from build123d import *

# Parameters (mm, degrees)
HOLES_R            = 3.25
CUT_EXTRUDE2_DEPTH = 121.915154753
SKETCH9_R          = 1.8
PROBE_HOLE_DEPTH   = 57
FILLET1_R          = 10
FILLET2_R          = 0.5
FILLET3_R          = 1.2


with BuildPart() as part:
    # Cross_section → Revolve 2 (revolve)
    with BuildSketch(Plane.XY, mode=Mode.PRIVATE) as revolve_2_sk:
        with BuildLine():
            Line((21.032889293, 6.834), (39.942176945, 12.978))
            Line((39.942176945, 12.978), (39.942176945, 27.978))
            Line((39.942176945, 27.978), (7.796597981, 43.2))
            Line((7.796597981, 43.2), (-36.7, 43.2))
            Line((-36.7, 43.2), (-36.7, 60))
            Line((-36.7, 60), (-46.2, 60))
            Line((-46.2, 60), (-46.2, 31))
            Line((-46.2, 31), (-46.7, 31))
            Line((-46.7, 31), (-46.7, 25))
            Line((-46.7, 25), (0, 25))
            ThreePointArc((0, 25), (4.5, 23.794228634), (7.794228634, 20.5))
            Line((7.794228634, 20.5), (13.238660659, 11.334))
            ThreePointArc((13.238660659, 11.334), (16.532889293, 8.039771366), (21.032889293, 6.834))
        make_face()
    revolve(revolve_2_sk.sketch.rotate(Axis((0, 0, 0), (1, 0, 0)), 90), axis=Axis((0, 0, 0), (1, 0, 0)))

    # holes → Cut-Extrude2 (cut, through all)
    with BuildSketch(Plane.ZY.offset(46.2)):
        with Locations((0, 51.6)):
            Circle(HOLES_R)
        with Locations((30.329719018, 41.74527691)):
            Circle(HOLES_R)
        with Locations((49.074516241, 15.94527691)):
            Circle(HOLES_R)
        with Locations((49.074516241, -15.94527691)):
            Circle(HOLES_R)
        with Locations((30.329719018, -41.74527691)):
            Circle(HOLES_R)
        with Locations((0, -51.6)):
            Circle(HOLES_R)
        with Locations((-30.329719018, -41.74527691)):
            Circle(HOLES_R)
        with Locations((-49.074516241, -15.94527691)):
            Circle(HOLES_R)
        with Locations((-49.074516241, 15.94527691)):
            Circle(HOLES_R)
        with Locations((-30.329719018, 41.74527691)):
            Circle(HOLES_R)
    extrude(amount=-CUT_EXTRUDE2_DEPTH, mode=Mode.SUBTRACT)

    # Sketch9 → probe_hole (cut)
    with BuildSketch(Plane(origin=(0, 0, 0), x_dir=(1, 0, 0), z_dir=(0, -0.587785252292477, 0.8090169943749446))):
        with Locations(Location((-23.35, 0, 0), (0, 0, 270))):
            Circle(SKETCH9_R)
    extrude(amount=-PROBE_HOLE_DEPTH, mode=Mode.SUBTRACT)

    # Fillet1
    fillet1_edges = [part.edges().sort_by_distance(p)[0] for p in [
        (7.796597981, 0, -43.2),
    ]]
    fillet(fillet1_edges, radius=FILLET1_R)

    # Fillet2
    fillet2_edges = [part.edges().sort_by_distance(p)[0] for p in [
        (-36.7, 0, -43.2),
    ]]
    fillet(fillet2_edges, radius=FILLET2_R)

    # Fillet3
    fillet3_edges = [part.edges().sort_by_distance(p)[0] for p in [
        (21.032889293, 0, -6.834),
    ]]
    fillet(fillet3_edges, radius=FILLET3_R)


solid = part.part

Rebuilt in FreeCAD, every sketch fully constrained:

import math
import FreeCAD as App
import Part
import Sketcher
Q = App.Units.Quantity


def edges_at(feature, points):
    """Names of the edges that pass closest to the given points."""
    edges = feature.Shape.Edges
    near = lambda p: min(range(len(edges)), key=lambda i: edges[i].distToShape(Part.Vertex(*p))[0])
    return sorted({f"Edge{near(p) + 1}" for p in points})

doc = App.newDocument("Part")
body = doc.addObject("PartDesign::Body", "Body")

# Sketch on XY plane
sketch1 = body.newObject("Sketcher::SketchObject", "Sketch")
sketch1.AttachmentSupport = (doc.getObject("XY_Plane"), [""])
sketch1.MapMode = "FlatFace"
sketch1.addGeometry(Part.LineSegment(App.Vector(21, 6.8, 0), App.Vector(39.9, 13, 0)), False)
sketch1.addGeometry(Part.LineSegment(App.Vector(39.9, 13, 0), App.Vector(39.9, 28, 0)), False)
sketch1.addGeometry(Part.LineSegment(App.Vector(39.9, 28, 0), App.Vector(7.8, 43.2, 0)), False)
sketch1.addGeometry(Part.LineSegment(App.Vector(7.8, 43.2, 0), App.Vector(-36.7, 43.2, 0)), False)
sketch1.addGeometry(Part.LineSegment(App.Vector(-36.7, 43.2, 0), App.Vector(-36.7, 60, 0)), False)
sketch1.addGeometry(Part.LineSegment(App.Vector(-36.7, 60, 0), App.Vector(-46.2, 60, 0)), False)
sketch1.addGeometry(Part.LineSegment(App.Vector(-46.2, 60, 0), App.Vector(-46.2, 31, 0)), False)
sketch1.addGeometry(Part.LineSegment(App.Vector(-46.2, 31, 0), App.Vector(-46.7, 31, 0)), False)
sketch1.addGeometry(Part.LineSegment(App.Vector(-46.7, 31, 0), App.Vector(-46.7, 25, 0)), False)
sketch1.addGeometry(Part.LineSegment(App.Vector(-46.7, 25, 0), App.Vector(0, 25, 0)), False)
sketch1.addGeometry(Part.ArcOfCircle(Part.Circle(App.Vector(0, 16, 0), App.Vector(0, 0, 1), 9), math.radians(30), math.radians(90)), False)
sketch1.addGeometry(Part.LineSegment(App.Vector(7.8, 20.5, 0), App.Vector(13.2, 11.3, 0)), False)
sketch1.addGeometry(Part.ArcOfCircle(Part.Circle(App.Vector(21, 15.8, 0), App.Vector(0, 0, 1), 9), math.radians(-150), math.radians(-90)), False)
sketch1.addConstraint(Sketcher.Constraint("Coincident", 0, 2, 1, 1))
sketch1.addConstraint(Sketcher.Constraint("Coincident", 1, 2, 2, 1))
sketch1.addConstraint(Sketcher.Constraint("Coincident", 2, 2, 3, 1))
sketch1.addConstraint(Sketcher.Constraint("Coincident", 3, 2, 4, 1))
sketch1.addConstraint(Sketcher.Constraint("Coincident", 4, 2, 5, 1))
sketch1.addConstraint(Sketcher.Constraint("Coincident", 5, 2, 6, 1))
sketch1.addConstraint(Sketcher.Constraint("Coincident", 6, 2, 7, 1))
sketch1.addConstraint(Sketcher.Constraint("Coincident", 7, 2, 8, 1))
sketch1.addConstraint(Sketcher.Constraint("Coincident", 8, 2, 9, 1))
sketch1.addConstraint(Sketcher.Constraint("Tangent", 9, 2, 10, 2))
sketch1.addConstraint(Sketcher.Constraint("Coincident", 10, 1, 11, 1))
sketch1.addConstraint(Sketcher.Constraint("Coincident", 11, 2, 12, 1))
sketch1.addConstraint(Sketcher.Constraint("Coincident", 12, 2, 0, 1))
sketch1.addConstraint(Sketcher.Constraint("Vertical", 1))
sketch1.addConstraint(Sketcher.Constraint("Horizontal", 3))
sketch1.addConstraint(Sketcher.Constraint("Vertical", 4))
sketch1.addConstraint(Sketcher.Constraint("Horizontal", 5))
sketch1.addConstraint(Sketcher.Constraint("Vertical", 6))
sketch1.addConstraint(Sketcher.Constraint("Horizontal", 7))
sketch1.addConstraint(Sketcher.Constraint("Vertical", 8))
sketch1.addConstraint(Sketcher.Constraint("Horizontal", 9))
sketch1.addConstraint(Sketcher.Constraint("Equal", 10, 12))
sketch1.addConstraint(Sketcher.Constraint("PointOnObject", 10, 3, -2))
sketch1.addConstraint(Sketcher.Constraint("Radius", 10, 9.0))
sketch1.addConstraint(Sketcher.Constraint("DistanceY", 1, 1, 1, 2, 15.0))
sketch1.addConstraint(Sketcher.Constraint("DistanceY", 6, 2, 6, 1, 29.0))
sketch1.addConstraint(Sketcher.Constraint("DistanceY", 8, 2, 8, 1, 6.0))
sketch1.addConstraint(Sketcher.Constraint("Angle", 0, Q("18 deg")))
sketch1.addConstraint(Sketcher.Constraint("DistanceX", 5, 2, 5, 1, 9.5))
sketch1.addConstraint(Sketcher.Constraint("DistanceX", 7, 2, 7, 1, 0.5))
sketch1.addConstraint(Sketcher.Constraint("DistanceX", 9, 1, 9, 2, 46.7))
sketch1.addConstraint(Sketcher.Constraint("DistanceY", 4, 1, 4, 2, 16.8))
sketch1.addConstraint(Sketcher.Constraint("DistanceY", -1, 1, 10, 3, 16.0))
sketch1.addConstraint(Sketcher.Constraint("DistanceY", -1, 1, 10, 1, 20.5))
sketch1.addConstraint(Sketcher.Constraint("DistanceY", 11, 2, 12, 3, 4.5))
sketch1.addConstraint(Sketcher.Constraint("DistanceY", -1, 1, 12, 3, 15.834))
sketch1.addConstraint(Sketcher.Constraint("DistanceY", -1, 1, 0, 2, 12.978))
sketch1.addConstraint(Sketcher.Constraint("DistanceX", 3, 2, 3, 1, 44.496598))
sketch1.addConstraint(Sketcher.Constraint("DistanceX", -1, 1, 12, 3, 21.032889))
sketch1.addConstraint(Sketcher.Constraint("DistanceX", -1, 1, 12, 2, 21.032889))
revolution = body.newObject("PartDesign::Revolution", "Revolution")
revolution.Profile = sketch1
revolution.ReferenceAxis = (sketch1, ["H_Axis"])
revolution.Angle = 360

# Sketch on YZ plane
sketch2 = body.newObject("Sketcher::SketchObject", "Sketch001")
sketch2.AttachmentSupport = (doc.getObject("YZ_Plane"), [""])
sketch2.MapMode = "FlatFace"
sketch2.AttachmentOffset = App.Placement(App.Vector(0, 0, -46.2), App.Rotation())
sketch2.addGeometry(Part.Circle(App.Vector(51.6, 0, 0), App.Vector(0, 0, 1), 3.2), False)
sketch2.addGeometry(Part.Circle(App.Vector(41.7, 30.3, 0), App.Vector(0, 0, 1), 3.2), False)
sketch2.addGeometry(Part.Circle(App.Vector(15.9, 49.1, 0), App.Vector(0, 0, 1), 3.2), False)
sketch2.addGeometry(Part.Circle(App.Vector(-15.9, 49.1, 0), App.Vector(0, 0, 1), 3.2), False)
sketch2.addGeometry(Part.Circle(App.Vector(-41.7, 30.3, 0), App.Vector(0, 0, 1), 3.2), False)
sketch2.addGeometry(Part.Circle(App.Vector(-51.6, 0, 0), App.Vector(0, 0, 1), 3.2), False)
sketch2.addGeometry(Part.Circle(App.Vector(-41.7, -30.3, 0), App.Vector(0, 0, 1), 3.2), False)
sketch2.addGeometry(Part.Circle(App.Vector(-15.9, -49.1, 0), App.Vector(0, 0, 1), 3.2), False)
sketch2.addGeometry(Part.Circle(App.Vector(15.9, -49.1, 0), App.Vector(0, 0, 1), 3.2), False)
sketch2.addGeometry(Part.Circle(App.Vector(41.7, -30.3, 0), App.Vector(0, 0, 1), 3.2), False)
sketch2.addConstraint(Sketcher.Constraint("Equal", 0, 1))
sketch2.addConstraint(Sketcher.Constraint("Equal", 1, 2))
sketch2.addConstraint(Sketcher.Constraint("Equal", 2, 3))
sketch2.addConstraint(Sketcher.Constraint("Equal", 3, 4))
sketch2.addConstraint(Sketcher.Constraint("Equal", 4, 5))
sketch2.addConstraint(Sketcher.Constraint("Equal", 5, 6))
sketch2.addConstraint(Sketcher.Constraint("Equal", 6, 7))
sketch2.addConstraint(Sketcher.Constraint("Equal", 7, 8))
sketch2.addConstraint(Sketcher.Constraint("Equal", 8, 9))
sketch2.addConstraint(Sketcher.Constraint("Symmetric", 0, 3, 5, 3, -1, 1))
sketch2.addConstraint(Sketcher.Constraint("Symmetric", 1, 3, 6, 3, -1, 1))
sketch2.addConstraint(Sketcher.Constraint("Symmetric", 2, 3, 7, 3, -1, 1))
sketch2.addConstraint(Sketcher.Constraint("Symmetric", 3, 3, 8, 3, -1, 1))
sketch2.addConstraint(Sketcher.Constraint("Symmetric", 4, 3, 9, 3, -1, 1))
sketch2.addConstraint(Sketcher.Constraint("Symmetric", 2, 3, 3, 3, -2))
sketch2.addConstraint(Sketcher.Constraint("Symmetric", 1, 3, 4, 3, -2))
sketch2.addConstraint(Sketcher.Constraint("PointOnObject", 0, 3, -1))
sketch2.addConstraint(Sketcher.Constraint("Diameter", 0, 6.5))
sketch2.addConstraint(Sketcher.Constraint("DistanceX", -1, 1, 0, 3, 51.6))
sketch2.addConstraint(Sketcher.Constraint("DistanceX", 2, 3, 1, 3, 25.8))
sketch2.addConstraint(Sketcher.Constraint("DistanceY", -1, 1, 1, 3, 30.329719))
sketch2.addConstraint(Sketcher.Constraint("DistanceX", -1, 1, 1, 3, 41.745277))
sketch2.addConstraint(Sketcher.Constraint("DistanceY", -1, 1, 2, 3, 49.074516))
pocket1 = body.newObject("PartDesign::Pocket", "Pocket")
pocket1.Profile = sketch2
pocket1.Type = "ThroughAll"
pocket1.Reversed = True

# Sketch on an angled plane
sketch3 = body.newObject("Sketcher::SketchObject", "Sketch002")
sketch3.Placement = App.Placement(App.Vector(0, 0, 0), App.Rotation(App.Vector(1, 0, 0), App.Vector(0, 0.809016994, 0.587785252), App.Vector(0, -0.587785252, 0.809016994), "ZXY"))
sketch3.addGeometry(Part.Circle(App.Vector(-23.4, 0, 0), App.Vector(0, 0, 1), 1.8), False)
sketch3.addConstraint(Sketcher.Constraint("PointOnObject", 0, 3, -1))
sketch3.addConstraint(Sketcher.Constraint("Diameter", 0, 3.6))
sketch3.addConstraint(Sketcher.Constraint("DistanceX", 0, 3, -1, 1, 23.35))
pocket2 = body.newObject("PartDesign::Pocket", "Pocket001")
pocket2.Profile = sketch3
pocket2.Length = 57
doc.recompute()

fillet = body.newObject("PartDesign::Fillet", "Fillet")
fillet.Base = (pocket2, edges_at(pocket2, [(7.797, 0, -43.2)]))
fillet.Radius = 10
doc.recompute()

fillet2 = body.newObject("PartDesign::Fillet", "Fillet001")
fillet2.Base = (fillet, edges_at(fillet, [(-36.7, 0, -43.2)]))
fillet2.Radius = 0.5
doc.recompute()

fillet3 = body.newObject("PartDesign::Fillet", "Fillet002")
fillet3.Base = (fillet2, edges_at(fillet2, [(21.033, 0, -6.834)]))
fillet3.Radius = 1.2

doc.recompute()
